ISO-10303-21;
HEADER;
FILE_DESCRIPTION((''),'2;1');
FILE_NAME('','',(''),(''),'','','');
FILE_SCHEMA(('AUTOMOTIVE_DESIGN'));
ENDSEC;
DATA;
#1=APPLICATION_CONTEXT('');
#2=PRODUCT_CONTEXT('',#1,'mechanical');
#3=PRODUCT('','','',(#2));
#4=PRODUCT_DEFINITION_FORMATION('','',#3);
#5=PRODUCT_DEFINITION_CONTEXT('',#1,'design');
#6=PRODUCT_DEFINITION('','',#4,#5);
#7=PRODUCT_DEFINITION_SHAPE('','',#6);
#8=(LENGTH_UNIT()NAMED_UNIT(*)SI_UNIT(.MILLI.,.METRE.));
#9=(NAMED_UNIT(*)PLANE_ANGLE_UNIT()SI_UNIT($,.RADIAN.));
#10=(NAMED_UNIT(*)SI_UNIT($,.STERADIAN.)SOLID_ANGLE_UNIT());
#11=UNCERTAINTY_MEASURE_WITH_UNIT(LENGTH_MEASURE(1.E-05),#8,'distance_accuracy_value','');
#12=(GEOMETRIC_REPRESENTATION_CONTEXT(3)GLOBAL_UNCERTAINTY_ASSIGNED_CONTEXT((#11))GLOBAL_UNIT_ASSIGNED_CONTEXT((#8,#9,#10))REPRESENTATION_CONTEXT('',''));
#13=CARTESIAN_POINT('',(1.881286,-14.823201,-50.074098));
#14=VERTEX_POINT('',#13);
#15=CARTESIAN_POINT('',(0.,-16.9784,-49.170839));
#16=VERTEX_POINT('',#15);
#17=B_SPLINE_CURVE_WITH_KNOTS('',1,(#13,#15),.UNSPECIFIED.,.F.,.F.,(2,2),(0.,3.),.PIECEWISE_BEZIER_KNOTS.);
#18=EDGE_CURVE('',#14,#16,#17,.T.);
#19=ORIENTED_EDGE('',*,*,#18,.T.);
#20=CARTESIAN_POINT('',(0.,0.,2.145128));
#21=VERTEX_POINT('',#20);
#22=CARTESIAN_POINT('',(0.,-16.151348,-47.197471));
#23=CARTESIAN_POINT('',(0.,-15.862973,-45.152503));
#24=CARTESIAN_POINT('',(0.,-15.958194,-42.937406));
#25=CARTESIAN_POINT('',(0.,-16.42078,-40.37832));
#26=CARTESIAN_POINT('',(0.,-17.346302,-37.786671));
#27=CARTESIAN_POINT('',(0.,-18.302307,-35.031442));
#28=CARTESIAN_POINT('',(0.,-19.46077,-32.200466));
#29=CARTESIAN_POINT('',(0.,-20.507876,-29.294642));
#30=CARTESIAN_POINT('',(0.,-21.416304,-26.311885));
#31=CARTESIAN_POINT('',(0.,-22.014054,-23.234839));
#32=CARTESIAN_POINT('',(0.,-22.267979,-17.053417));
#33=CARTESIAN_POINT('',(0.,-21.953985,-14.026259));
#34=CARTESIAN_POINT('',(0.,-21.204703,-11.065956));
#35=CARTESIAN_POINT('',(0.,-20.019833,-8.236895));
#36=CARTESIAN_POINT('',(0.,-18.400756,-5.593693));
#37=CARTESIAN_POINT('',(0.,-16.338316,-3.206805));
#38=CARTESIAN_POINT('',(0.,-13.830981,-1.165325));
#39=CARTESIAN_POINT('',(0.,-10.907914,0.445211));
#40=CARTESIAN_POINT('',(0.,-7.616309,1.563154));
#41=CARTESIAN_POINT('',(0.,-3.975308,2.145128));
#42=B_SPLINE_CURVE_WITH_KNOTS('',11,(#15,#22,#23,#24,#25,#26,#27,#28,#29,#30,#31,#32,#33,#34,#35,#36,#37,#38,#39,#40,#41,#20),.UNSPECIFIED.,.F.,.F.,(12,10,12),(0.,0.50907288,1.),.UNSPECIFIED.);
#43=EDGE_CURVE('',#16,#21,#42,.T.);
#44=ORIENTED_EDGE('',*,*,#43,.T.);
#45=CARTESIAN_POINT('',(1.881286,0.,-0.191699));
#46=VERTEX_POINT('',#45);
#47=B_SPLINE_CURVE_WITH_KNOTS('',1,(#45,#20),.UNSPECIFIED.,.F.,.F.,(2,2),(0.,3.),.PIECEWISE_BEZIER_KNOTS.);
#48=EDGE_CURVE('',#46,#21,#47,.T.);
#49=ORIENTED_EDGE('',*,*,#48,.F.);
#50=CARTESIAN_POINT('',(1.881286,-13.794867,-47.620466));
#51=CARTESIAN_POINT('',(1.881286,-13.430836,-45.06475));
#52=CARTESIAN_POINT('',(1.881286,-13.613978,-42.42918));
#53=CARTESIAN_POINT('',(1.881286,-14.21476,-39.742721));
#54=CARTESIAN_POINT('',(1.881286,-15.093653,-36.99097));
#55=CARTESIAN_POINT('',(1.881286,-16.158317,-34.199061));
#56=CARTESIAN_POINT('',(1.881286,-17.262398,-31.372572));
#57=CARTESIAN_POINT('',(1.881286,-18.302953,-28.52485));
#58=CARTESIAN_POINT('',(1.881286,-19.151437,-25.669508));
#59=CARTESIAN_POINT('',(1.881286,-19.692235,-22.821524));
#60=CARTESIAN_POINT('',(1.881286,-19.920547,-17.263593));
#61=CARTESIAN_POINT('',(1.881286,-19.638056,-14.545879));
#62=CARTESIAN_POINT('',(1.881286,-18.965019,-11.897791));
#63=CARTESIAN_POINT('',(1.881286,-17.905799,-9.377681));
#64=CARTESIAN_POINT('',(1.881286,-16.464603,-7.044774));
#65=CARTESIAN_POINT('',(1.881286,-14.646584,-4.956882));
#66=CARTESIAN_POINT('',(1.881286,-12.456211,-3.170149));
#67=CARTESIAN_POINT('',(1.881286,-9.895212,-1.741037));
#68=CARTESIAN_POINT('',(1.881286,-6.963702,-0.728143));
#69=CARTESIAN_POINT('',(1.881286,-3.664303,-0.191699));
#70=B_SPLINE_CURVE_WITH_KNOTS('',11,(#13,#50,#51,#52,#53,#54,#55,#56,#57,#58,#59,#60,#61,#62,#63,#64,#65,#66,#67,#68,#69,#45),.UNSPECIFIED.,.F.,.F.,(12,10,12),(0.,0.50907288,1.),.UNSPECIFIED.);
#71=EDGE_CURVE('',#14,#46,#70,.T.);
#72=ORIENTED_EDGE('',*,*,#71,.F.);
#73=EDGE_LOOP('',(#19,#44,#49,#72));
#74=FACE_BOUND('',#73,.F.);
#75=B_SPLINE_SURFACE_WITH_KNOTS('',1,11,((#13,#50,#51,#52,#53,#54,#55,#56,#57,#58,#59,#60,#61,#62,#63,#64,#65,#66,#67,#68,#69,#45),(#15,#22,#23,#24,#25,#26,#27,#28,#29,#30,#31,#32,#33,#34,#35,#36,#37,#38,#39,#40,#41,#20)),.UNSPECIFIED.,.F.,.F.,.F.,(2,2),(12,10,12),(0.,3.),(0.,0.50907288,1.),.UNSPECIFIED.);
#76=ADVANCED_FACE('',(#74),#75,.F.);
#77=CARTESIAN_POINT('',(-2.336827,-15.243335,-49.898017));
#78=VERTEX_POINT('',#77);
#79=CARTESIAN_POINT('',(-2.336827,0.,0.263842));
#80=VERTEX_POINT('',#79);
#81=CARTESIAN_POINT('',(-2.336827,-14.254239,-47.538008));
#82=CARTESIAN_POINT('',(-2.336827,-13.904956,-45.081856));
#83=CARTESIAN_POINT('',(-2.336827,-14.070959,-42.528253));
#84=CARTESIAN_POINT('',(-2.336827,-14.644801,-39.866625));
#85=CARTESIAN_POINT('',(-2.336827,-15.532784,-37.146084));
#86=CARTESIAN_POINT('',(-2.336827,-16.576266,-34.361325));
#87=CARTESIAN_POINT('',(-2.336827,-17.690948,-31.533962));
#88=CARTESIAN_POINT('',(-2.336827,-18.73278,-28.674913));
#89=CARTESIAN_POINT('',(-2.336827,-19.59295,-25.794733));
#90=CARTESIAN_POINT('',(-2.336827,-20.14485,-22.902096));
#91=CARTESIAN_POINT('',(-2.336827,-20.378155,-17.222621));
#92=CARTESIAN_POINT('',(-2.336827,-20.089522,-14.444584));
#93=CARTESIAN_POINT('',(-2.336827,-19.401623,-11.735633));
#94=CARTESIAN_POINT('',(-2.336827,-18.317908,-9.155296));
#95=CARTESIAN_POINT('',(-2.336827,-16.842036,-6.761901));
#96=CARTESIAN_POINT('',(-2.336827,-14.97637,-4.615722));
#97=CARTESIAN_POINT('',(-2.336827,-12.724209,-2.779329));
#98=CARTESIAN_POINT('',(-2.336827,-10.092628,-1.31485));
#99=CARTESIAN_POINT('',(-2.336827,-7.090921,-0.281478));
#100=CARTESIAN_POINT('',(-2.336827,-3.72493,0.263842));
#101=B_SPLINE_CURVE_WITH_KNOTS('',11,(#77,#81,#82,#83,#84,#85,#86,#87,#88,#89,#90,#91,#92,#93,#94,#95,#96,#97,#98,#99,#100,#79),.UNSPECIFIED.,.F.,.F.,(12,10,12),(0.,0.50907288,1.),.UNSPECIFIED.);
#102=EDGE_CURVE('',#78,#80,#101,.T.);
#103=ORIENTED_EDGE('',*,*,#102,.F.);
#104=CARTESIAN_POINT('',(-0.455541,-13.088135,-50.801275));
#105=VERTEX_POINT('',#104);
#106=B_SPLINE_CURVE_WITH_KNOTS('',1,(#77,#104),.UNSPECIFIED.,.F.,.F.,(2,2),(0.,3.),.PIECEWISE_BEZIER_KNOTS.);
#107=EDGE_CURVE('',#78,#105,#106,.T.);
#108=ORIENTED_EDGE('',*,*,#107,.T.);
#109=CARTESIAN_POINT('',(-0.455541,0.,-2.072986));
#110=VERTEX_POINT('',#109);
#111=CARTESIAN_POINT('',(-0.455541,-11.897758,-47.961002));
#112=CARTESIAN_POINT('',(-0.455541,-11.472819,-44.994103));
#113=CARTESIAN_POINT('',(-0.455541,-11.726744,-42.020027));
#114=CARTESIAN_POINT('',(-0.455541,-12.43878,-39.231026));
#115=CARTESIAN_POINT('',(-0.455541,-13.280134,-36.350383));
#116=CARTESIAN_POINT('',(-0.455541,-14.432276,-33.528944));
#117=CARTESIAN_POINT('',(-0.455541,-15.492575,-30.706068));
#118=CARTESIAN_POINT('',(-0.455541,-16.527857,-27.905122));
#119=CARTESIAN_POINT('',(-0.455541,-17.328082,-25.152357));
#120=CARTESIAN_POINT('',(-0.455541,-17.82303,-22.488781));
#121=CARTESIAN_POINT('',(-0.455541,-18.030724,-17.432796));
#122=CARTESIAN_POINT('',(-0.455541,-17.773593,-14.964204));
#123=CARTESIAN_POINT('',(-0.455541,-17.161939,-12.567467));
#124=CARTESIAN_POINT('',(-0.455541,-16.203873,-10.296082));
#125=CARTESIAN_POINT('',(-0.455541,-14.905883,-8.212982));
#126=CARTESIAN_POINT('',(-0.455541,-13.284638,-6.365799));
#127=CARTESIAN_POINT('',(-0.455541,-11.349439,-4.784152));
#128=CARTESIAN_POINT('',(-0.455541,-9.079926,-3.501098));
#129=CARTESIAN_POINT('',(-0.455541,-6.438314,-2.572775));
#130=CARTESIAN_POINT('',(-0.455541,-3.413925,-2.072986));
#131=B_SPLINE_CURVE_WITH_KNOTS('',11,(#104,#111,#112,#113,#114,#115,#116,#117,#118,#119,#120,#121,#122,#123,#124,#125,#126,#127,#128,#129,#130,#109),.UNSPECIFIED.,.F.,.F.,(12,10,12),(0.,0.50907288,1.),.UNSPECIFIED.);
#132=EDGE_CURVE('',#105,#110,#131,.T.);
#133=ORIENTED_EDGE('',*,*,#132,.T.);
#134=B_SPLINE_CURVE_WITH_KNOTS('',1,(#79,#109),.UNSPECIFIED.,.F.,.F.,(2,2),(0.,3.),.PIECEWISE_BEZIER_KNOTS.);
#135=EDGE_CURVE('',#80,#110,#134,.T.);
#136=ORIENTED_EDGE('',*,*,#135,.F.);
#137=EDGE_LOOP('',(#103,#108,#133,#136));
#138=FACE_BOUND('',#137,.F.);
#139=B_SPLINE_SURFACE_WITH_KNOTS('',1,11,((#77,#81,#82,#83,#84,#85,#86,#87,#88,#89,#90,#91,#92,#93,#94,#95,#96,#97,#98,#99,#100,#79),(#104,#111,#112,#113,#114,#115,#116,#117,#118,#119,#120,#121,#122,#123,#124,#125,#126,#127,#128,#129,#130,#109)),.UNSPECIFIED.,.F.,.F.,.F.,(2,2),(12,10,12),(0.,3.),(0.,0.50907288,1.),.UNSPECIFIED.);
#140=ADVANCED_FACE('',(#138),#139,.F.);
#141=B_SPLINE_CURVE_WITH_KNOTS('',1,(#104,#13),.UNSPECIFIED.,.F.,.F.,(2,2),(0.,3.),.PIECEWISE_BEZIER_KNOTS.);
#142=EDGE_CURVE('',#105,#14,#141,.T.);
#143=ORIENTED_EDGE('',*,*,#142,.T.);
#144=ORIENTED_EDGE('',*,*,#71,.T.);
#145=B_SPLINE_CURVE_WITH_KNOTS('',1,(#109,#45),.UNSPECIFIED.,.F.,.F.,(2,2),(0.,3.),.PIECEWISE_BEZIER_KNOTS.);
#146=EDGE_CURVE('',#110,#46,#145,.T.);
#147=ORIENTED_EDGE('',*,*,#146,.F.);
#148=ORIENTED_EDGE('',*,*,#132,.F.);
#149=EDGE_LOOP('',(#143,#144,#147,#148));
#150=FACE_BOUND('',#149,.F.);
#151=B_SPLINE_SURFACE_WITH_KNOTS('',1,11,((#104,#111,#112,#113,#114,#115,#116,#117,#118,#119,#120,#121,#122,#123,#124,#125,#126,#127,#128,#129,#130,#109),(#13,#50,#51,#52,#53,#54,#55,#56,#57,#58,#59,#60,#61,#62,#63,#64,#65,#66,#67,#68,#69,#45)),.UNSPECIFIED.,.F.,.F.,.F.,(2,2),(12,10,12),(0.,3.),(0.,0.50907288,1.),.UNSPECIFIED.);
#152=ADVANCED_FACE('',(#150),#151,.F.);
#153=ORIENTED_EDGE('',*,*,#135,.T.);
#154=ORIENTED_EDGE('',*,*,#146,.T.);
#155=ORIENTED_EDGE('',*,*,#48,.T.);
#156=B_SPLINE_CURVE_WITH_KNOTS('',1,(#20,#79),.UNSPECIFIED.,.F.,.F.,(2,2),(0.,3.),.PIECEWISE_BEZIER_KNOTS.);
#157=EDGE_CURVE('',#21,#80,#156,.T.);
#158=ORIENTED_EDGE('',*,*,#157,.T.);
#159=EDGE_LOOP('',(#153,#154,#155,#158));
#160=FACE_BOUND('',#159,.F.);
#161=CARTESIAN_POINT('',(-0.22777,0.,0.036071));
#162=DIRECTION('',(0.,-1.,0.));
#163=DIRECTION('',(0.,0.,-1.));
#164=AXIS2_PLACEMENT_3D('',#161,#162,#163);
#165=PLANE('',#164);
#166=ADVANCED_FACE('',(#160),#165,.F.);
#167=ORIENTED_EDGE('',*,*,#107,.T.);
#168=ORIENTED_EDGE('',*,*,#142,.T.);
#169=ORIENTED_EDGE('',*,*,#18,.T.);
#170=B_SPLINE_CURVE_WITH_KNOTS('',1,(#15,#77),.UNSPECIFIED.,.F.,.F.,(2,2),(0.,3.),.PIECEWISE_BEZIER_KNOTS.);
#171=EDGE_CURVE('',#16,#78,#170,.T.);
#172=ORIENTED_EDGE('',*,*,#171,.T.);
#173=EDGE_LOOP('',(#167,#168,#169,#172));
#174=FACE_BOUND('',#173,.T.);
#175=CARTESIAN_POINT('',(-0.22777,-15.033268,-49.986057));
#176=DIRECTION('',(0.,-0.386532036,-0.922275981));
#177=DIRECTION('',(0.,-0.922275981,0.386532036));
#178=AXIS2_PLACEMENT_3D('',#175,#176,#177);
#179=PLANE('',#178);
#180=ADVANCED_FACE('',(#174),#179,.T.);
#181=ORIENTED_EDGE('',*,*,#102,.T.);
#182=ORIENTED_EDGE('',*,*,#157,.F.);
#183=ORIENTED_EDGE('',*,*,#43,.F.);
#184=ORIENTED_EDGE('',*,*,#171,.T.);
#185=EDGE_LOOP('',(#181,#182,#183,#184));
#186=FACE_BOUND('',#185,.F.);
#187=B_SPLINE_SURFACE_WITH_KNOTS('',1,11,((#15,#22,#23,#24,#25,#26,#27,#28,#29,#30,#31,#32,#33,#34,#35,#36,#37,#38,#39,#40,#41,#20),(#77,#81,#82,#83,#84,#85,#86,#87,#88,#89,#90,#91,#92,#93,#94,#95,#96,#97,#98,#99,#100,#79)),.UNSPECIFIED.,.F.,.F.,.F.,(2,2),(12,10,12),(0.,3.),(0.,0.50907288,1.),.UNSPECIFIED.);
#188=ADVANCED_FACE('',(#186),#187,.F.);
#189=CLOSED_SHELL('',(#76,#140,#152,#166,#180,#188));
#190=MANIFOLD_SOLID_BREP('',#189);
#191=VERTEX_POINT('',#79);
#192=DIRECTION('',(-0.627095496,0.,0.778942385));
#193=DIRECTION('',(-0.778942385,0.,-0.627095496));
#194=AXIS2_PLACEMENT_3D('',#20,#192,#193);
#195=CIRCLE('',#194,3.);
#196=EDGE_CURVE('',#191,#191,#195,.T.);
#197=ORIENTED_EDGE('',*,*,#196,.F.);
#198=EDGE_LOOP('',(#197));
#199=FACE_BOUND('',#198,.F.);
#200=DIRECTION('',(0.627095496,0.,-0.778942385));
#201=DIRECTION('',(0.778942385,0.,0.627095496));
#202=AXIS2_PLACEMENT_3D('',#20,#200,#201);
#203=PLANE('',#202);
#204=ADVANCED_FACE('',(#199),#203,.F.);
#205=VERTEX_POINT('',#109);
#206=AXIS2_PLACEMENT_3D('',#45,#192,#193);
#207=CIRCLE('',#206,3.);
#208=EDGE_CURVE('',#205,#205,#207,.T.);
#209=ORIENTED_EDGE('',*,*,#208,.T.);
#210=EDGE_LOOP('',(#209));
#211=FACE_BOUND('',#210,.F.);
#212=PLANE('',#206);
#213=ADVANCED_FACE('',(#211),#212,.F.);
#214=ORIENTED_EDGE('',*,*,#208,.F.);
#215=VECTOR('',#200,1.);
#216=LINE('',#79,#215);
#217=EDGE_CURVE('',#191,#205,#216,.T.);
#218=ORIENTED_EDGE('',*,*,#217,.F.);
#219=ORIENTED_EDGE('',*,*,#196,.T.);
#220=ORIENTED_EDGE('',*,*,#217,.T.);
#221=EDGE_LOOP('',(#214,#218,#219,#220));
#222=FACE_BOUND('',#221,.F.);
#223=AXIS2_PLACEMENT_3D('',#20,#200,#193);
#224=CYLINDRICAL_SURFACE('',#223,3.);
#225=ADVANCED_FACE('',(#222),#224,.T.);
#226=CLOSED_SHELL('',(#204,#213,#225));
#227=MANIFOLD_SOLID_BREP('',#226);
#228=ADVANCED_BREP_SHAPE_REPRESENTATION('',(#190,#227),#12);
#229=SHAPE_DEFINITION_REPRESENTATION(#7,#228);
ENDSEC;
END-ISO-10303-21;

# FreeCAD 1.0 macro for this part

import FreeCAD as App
import Part
import Sketcher

V = App.Vector
Q = App.Units.Quantity


def add_polygon(sketch, points):
    """Adds a closed chain of lines whose ends are joined by coincident constraints."""
    first, n = sketch.GeometryCount, len(points)
    for a, b in zip(points, points[1:] + points[:1]):
        sketch.addGeometry(Part.LineSegment(App.Vector(*a, 0), App.Vector(*b, 0)), False)
    for i in range(n):
        sketch.addConstraint(Sketcher.Constraint("Coincident", first + i, 2, first + (i + 1) % n, 1))

doc = App.newDocument("Part")
body = doc.addObject("PartDesign::Body", "Body")

sketch1 = body.newObject("Sketcher::SketchObject", "Sketch")
sketch1.AttachmentSupport = (doc.getObject("XZ_Plane"), [""])
sketch1.MapMode = "FlatFace"
add_polygon(sketch1, [(-2.3, 0.3), (-0.5, -2.1), (1.9, -0.2), (0, 2.1)])
sketch1.addConstraint([
    Sketcher.Constraint("PointOnObject", 2, 2, -2),
    Sketcher.Constraint("Perpendicular", 0, 1),
    Sketcher.Constraint("Perpendicular", 1, 2),
    Sketcher.Constraint("Perpendicular", 2, 3),
    Sketcher.Constraint("Equal", 0, 1),
    Sketcher.Constraint("Distance", 0, Q("3 mm")),
    Sketcher.Constraint("DistanceY", 1, 2, -1, 1, Q("0.191699 mm")),
    Sketcher.Constraint("DistanceX", 0, 2, -1, 1, Q("0.455541 mm")),
])

sketch2 = body.newObject("Sketcher::SketchObject", "Sketch001")
sketch2.AttachmentSupport = (doc.getObject("YZ_Plane"), [""])
sketch2.MapMode = "FlatFace"
sketch2.addGeometry(Part.BSplineCurve([V(-15, -50, 0), V(-11.289988, -41.147809, 0), V(-27.554696, -20.172621, 0), V(-13.529325, 0, 0), V(0, 0, 0)], [4, 1, 4], [0, 0.50907288, 1], False, 3, [1, 1, 1, 1, 1], False), False)
sketch2.addConstraint(Sketcher.Constraint("Block", 0))
doc.recompute()

additivepipe = body.newObject("PartDesign::AdditivePipe", "AdditivePipe")
additivepipe.Profile = sketch1
additivepipe.Spine = (sketch2, ["Edge1"])
body2 = doc.addObject("PartDesign::Body", "Body001")

sketch3 = body2.newObject("Sketcher::SketchObject", "Sketch002")
sketch3.AttachmentSupport = (doc.getObject("XZ_Plane001"), [""])
sketch3.MapMode = "FlatFace"
add_polygon(sketch3, [(-2.3, 0.3), (-0.5, -2.1), (1.9, -0.2), (0, 2.1)])
sketch3.addGeometry(Part.LineSegment(V(1.9, -0.2, 0), V(0, 2.1, 0)), True)
sketch3.addConstraint([
    Sketcher.Constraint("Coincident", 4, 1, 1, 2),
    Sketcher.Constraint("Coincident", 4, 2, 2, 2),
    Sketcher.Constraint("PointOnObject", 2, 2, -2),
    Sketcher.Constraint("Perpendicular", 0, 1),
    Sketcher.Constraint("Perpendicular", 1, 2),
    Sketcher.Constraint("Perpendicular", 2, 3),
    Sketcher.Constraint("Equal", 0, 1),
    Sketcher.Constraint("Distance", 0, Q("3 mm")),
    Sketcher.Constraint("DistanceY", 1, 2, -1, 1, Q("0.191699 mm")),
    Sketcher.Constraint("DistanceX", 0, 2, -1, 1, Q("0.455541 mm")),
])
revolution = body2.newObject("PartDesign::Revolution", "Revolution")
revolution.Profile = sketch3
revolution.ReferenceAxis = (sketch3, ["Axis0"])
revolution.Angle = 360

doc.recompute()
